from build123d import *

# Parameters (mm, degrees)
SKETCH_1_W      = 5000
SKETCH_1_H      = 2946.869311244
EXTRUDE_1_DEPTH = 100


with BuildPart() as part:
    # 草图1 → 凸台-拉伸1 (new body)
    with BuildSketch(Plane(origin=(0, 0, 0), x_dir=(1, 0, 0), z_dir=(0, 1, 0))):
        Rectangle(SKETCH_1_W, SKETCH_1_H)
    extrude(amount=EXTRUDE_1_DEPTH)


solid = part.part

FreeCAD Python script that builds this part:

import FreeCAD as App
import Part
import Sketcher
from FreeCAD import Vector
Q = App.Units.Quantity

doc = App.newDocument("Part")
body = doc.addObject("PartDesign::Body", "Body")

# Sketch on XZ plane
sketch1 = body.newObject("Sketcher::SketchObject", "Sketch")
sketch1.AttachmentSupport = (doc.getObject("XZ_Plane"), [""])
sketch1.MapMode = "FlatFace"
sketch1.addGeometry([
    Part.LineSegment(Vector(-2500, -1473, 0), Vector(-2500, 1473, 0)),
    Part.LineSegment(Vector(-2500, 1473, 0), Vector(2500, 1473, 0)),
    Part.LineSegment(Vector(2500, 1473, 0), Vector(2500, -1473, 0)),
    Part.LineSegment(Vector(2500, -1473, 0), Vector(-2500, -1473, 0)),
], False)
sketch1.addConstraint([
    Sketcher.Constraint("Coincident", 0, 2, 1, 1),
    Sketcher.Constraint("Coincident", 1, 2, 2, 1),
    Sketcher.Constraint("Coincident", 2, 2, 3, 1),
    Sketcher.Constraint("Coincident", 3, 2, 0, 1),
    Sketcher.Constraint("Vertical", 0),
    Sketcher.Constraint("Horizontal", 1),
    Sketcher.Constraint("Vertical", 2),
    Sketcher.Constraint("Horizontal", 3),
    Sketcher.Constraint("Symmetric", 0, 2, 2, 2, -1, 1),
    Sketcher.Constraint("DistanceX", 1, 1, 1, 2, Q("5000 mm")),
    Sketcher.Constraint("DistanceY", 0, 1, 0, 2, Q("2946.869311 mm")),
])
pad1 = body.newObject("PartDesign::Pad", "Pad")
pad1.Profile = sketch1
pad1.Length = 100
pad1.Reversed = True

doc.recompute()
